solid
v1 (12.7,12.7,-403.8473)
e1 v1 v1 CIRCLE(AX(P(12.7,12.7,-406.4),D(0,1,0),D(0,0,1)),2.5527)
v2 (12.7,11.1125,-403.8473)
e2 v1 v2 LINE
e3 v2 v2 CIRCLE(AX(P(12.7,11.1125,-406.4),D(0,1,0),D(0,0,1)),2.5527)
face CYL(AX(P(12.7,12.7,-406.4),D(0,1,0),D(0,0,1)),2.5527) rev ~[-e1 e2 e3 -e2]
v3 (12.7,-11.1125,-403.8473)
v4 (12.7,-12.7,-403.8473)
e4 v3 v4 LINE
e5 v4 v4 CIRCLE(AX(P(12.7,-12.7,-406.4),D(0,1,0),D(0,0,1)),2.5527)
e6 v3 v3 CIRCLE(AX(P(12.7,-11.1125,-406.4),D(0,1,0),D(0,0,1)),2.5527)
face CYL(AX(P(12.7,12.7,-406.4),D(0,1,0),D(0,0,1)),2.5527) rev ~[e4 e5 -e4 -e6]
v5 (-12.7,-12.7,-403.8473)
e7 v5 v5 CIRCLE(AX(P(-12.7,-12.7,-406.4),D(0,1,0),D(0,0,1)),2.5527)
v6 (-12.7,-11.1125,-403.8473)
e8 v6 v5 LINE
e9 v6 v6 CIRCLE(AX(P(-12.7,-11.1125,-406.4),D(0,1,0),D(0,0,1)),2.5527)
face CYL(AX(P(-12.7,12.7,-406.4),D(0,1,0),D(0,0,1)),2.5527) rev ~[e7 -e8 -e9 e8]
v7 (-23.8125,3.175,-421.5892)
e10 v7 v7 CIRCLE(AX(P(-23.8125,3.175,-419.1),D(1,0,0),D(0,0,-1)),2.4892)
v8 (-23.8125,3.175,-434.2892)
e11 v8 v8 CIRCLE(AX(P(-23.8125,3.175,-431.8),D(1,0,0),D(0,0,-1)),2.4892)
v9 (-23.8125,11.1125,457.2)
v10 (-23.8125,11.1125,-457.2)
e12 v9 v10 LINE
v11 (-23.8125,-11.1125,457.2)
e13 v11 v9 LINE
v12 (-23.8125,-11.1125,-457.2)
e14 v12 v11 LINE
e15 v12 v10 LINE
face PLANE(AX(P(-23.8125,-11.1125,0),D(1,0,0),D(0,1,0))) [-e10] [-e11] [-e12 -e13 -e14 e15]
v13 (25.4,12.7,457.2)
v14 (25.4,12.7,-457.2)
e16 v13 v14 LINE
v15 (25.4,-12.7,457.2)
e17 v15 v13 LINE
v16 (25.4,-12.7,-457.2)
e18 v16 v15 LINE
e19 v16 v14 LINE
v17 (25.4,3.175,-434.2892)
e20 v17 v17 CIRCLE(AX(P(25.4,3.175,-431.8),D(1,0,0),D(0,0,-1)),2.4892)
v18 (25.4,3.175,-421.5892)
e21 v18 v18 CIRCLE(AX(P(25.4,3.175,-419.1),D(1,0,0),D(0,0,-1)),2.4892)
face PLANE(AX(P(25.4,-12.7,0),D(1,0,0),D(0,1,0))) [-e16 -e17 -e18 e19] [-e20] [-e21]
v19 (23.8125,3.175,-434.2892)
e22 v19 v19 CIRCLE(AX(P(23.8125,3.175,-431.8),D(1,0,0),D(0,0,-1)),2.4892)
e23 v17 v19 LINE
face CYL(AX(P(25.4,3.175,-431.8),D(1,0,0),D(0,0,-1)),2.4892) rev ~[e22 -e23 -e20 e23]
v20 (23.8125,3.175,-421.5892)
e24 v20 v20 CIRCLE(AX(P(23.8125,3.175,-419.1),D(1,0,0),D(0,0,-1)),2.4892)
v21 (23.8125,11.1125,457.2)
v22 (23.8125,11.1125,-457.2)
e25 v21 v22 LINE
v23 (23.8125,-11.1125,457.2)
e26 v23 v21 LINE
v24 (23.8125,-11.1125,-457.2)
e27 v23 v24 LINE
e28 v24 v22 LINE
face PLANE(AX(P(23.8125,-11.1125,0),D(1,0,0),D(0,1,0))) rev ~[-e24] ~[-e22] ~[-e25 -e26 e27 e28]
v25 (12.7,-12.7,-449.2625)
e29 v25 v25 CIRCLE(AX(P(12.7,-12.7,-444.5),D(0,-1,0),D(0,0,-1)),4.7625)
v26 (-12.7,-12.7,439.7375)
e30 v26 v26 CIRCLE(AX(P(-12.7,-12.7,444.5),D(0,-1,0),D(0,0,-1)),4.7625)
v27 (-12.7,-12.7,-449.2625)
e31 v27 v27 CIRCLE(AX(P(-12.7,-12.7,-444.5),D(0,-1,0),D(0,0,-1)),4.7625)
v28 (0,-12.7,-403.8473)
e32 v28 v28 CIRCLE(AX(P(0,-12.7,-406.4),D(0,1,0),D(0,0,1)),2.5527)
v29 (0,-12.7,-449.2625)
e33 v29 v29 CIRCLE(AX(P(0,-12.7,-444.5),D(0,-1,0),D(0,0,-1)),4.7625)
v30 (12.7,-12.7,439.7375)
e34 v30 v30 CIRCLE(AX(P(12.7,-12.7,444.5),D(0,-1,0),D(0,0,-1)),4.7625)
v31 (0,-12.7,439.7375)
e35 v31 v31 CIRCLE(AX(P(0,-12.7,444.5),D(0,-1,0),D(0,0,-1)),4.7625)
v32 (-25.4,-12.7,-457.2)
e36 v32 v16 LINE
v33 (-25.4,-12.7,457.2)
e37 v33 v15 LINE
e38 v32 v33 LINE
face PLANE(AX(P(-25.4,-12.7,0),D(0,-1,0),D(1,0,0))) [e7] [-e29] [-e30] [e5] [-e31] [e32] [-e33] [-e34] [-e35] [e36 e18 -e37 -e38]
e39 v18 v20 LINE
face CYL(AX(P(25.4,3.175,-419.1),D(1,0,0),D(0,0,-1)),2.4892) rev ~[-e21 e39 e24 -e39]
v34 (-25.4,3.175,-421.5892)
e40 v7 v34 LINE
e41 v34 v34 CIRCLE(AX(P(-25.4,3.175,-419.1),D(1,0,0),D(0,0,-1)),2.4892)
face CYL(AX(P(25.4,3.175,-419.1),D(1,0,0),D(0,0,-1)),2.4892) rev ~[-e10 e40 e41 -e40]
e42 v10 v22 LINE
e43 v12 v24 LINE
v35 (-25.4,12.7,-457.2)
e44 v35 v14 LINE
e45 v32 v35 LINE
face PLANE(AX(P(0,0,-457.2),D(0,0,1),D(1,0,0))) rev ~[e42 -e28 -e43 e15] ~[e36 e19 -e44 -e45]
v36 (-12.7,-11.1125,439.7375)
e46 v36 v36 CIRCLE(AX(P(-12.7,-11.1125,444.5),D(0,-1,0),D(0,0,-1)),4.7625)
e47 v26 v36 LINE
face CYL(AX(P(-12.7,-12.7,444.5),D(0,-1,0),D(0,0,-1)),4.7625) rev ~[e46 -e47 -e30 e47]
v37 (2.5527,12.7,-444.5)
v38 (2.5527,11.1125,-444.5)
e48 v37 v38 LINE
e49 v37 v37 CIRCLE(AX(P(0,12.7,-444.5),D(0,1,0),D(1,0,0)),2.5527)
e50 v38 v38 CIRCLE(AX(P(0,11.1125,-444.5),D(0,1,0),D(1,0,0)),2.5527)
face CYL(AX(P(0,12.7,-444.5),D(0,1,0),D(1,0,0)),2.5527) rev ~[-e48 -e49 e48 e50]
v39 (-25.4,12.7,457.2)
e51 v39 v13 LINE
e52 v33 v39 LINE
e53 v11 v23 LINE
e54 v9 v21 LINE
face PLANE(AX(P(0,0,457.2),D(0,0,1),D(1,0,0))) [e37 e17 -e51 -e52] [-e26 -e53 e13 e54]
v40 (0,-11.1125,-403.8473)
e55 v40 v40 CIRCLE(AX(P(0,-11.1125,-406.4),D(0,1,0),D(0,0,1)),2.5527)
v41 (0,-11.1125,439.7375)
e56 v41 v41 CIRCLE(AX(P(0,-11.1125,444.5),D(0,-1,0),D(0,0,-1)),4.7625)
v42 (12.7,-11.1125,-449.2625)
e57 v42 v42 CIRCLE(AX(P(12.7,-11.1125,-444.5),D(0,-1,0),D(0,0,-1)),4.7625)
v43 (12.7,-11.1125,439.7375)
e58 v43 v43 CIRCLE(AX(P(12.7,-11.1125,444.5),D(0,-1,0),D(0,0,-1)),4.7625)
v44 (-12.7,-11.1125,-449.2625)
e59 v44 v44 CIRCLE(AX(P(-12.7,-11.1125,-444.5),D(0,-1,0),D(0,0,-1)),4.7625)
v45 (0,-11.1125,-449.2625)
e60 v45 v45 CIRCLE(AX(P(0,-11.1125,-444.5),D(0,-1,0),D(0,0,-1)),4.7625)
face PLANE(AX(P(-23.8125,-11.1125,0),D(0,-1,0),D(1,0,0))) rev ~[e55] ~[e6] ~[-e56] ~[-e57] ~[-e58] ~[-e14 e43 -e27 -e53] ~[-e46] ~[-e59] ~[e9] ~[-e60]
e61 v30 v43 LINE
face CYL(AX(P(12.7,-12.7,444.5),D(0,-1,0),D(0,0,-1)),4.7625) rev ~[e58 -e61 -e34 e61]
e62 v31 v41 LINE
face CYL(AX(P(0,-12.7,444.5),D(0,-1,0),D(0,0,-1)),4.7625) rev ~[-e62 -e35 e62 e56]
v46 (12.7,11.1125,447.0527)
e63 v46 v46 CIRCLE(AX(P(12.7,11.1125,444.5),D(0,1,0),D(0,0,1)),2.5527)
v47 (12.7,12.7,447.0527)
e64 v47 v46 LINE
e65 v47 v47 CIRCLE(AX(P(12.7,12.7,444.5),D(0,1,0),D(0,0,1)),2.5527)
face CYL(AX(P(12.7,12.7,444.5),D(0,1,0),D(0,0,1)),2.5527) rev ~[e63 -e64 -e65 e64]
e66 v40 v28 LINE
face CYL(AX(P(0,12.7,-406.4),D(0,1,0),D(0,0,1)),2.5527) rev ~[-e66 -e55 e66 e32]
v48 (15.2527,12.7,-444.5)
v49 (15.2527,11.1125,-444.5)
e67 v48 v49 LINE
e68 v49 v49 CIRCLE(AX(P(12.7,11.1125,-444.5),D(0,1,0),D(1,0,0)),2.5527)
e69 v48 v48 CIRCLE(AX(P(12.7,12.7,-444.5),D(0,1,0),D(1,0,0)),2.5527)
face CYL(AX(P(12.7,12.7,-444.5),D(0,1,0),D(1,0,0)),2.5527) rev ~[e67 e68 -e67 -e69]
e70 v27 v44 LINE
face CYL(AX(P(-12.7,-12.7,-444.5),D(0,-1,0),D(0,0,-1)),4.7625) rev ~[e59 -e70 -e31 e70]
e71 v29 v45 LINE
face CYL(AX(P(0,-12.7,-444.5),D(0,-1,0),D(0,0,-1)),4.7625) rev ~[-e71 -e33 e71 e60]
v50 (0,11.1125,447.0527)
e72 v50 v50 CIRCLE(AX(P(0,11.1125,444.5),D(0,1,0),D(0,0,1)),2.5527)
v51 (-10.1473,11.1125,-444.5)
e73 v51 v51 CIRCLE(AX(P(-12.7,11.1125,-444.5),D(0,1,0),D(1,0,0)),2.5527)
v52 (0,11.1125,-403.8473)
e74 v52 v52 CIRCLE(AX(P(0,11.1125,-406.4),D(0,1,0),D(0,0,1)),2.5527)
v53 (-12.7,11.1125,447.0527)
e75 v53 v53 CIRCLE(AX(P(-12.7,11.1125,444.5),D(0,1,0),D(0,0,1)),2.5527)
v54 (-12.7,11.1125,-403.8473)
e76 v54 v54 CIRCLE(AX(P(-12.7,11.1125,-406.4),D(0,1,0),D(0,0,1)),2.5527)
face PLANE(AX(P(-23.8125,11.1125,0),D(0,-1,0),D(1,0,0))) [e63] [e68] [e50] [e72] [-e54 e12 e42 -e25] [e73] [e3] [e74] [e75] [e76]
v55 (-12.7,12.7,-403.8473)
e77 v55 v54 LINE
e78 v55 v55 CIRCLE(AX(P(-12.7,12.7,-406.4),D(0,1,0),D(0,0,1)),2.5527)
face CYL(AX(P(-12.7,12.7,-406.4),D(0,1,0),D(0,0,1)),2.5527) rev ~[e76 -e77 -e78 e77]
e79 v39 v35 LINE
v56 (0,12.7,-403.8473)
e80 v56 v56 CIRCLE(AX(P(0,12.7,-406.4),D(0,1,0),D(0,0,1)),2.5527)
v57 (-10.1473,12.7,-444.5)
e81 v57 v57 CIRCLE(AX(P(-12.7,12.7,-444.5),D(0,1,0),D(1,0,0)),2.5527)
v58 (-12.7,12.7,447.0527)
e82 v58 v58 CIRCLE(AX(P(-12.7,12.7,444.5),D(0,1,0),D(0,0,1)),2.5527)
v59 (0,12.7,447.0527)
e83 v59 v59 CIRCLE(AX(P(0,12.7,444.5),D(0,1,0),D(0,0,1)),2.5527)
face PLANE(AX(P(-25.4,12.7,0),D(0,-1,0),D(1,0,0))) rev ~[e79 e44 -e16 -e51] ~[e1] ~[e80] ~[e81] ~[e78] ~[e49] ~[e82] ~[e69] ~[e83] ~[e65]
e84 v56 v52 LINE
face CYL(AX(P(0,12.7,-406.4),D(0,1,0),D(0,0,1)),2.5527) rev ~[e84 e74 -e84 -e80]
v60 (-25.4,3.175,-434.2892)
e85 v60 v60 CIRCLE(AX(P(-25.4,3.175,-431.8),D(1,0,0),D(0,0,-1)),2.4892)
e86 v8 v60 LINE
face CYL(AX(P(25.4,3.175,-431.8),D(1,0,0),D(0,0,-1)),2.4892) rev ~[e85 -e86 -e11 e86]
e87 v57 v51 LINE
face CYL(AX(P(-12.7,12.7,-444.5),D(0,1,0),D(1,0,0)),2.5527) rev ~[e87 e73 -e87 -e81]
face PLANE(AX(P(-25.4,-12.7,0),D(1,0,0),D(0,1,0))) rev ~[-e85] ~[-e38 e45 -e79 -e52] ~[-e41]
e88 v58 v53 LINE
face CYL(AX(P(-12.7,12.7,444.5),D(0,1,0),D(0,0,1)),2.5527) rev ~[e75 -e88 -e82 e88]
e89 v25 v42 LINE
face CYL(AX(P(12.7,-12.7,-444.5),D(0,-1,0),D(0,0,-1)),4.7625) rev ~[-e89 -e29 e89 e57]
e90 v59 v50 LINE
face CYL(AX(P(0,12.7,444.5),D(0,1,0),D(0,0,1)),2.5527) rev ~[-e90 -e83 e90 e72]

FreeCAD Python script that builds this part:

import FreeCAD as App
import Part
import Sketcher

V = App.Vector
Q = App.Units.Quantity


def add_polygon(sketch, points):
    """Adds a closed chain of lines whose ends are joined by coincident constraints."""
    first, n = sketch.GeometryCount, len(points)
    for a, b in zip(points, points[1:] + points[:1]):
        sketch.addGeometry(Part.LineSegment(App.Vector(*a, 0), App.Vector(*b, 0)), False)
    for i in range(n):
        sketch.addConstraint(Sketcher.Constraint("Coincident", first + i, 2, first + (i + 1) % n, 1))

doc = App.newDocument("Part")
body = doc.addObject("PartDesign::Body", "Body")

# Sketch on XY plane
sketch1 = body.newObject("Sketcher::SketchObject", "Sketch")
sketch1.AttachmentSupport = (doc.getObject("XY_Plane"), [""])
sketch1.MapMode = "FlatFace"
add_polygon(sketch1, [(-25.4, 12.7), (-25.4, -12.7), (25.4, -12.7), (25.4, 12.7)])  # lines 0-3
add_polygon(sketch1, [(23.8125, -11.1125), (-23.8125, -11.1125), (-23.8125, 11.1125), (23.8125, 11.1125)])  # lines 4-7
sketch1.addConstraint([
    Sketcher.Constraint("Vertical", 0),
    Sketcher.Constraint("Horizontal", 1),
    Sketcher.Constraint("Vertical", 2),
    Sketcher.Constraint("Horizontal", 3),
    Sketcher.Constraint("Horizontal", 4),
    Sketcher.Constraint("Vertical", 5),
    Sketcher.Constraint("Horizontal", 6),
    Sketcher.Constraint("Vertical", 7),
    Sketcher.Constraint("Symmetric", 0, 2, 2, 2, -1, 1),
    Sketcher.Constraint("Symmetric", 4, 2, 6, 2, -1, 1),
    Sketcher.Constraint("DistanceX", 1, 1, 1, 2, Q("2 in")),
    Sketcher.Constraint("DistanceY", 0, 2, 0, 1, Q("1 in")),
    Sketcher.Constraint("DistanceX", 4, 2, 4, 1, Q("1.875 in")),
    Sketcher.Constraint("DistanceY", 5, 1, 5, 2, Q("0.875 in")),
])
pad1 = body.newObject("PartDesign::Pad", "Pad")
pad1.Profile = sketch1
pad1.Length = Q("36 in")
pad1.Midplane = True

# Sketch on XZ plane
sketch2 = body.newObject("Sketcher::SketchObject", "Sketch001")
sketch2.AttachmentSupport = (doc.getObject("XZ_Plane"), [""])
sketch2.MapMode = "FlatFace"
sketch2.AttachmentOffset = App.Placement(V(0, 0, -0.5 * 25.4), App.Rotation())
sketch2.addGeometry([
    Part.Circle(V(0, 444.5, 0), V(0, 0, 1), 2.5527),  # 0
    Part.Circle(V(12.7, 444.5, 0), V(0, 0, 1), 2.5527),  # 1
    Part.Circle(V(-12.7, 444.5, 0), V(0, 0, 1), 2.5527),  # 2
    Part.Circle(V(12.7, -444.5, 0), V(0, 0, 1), 2.5527),  # 3
    Part.Circle(V(0, -444.5, 0), V(0, 0, 1), 2.5527),  # 4
    Part.Circle(V(-12.7, -444.5, 0), V(0, 0, 1), 2.5527),  # 5
], False)
sketch2.addConstraint([
    Sketcher.Constraint("Equal", 0, 1),
    Sketcher.Constraint("Equal", 1, 2),
    Sketcher.Constraint("Equal", 2, 3),
    Sketcher.Constraint("Equal", 3, 4),
    Sketcher.Constraint("Equal", 4, 5),
    Sketcher.Constraint("Symmetric", 2, 3, 3, 3, -1, 1),
    Sketcher.Constraint("Symmetric", 0, 3, 4, 3, -1, 1),
    Sketcher.Constraint("Symmetric", 1, 3, 5, 3, -1, 1),
    Sketcher.Constraint("Symmetric", 1, 3, 2, 3, -2),
    Sketcher.Constraint("PointOnObject", 0, 3, -2),
    Sketcher.Constraint("Horizontal", 0, 3, 1, 3),
    Sketcher.Constraint("Diameter", 0, Q("0.201 in")),
    Sketcher.Constraint("DistanceX", 2, 3, 1, 3, Q("1 in")),
    Sketcher.Constraint("DistanceY", 3, 3, 1, 3, Q("35 in")),
])
pocket1 = body.newObject("PartDesign::Pocket", "Pocket")
pocket1.Profile = sketch2
pocket1.Length = Q("0.0625 in")
pocket1.Reversed = True

# Sketch on XZ plane
sketch3 = body.newObject("Sketcher::SketchObject", "Sketch002")
sketch3.AttachmentSupport = (doc.getObject("XZ_Plane"), [""])
sketch3.MapMode = "FlatFace"
sketch3.AttachmentOffset = App.Placement(V(0, 0, 0.5 * 25.4), App.Rotation())
sketch3.addGeometry([
    Part.Circle(V(-12.7, 444.5, 0), V(0, 0, 1), 4.7625),  # 0
    Part.Circle(V(0, 444.5, 0), V(0, 0, 1), 4.7625),  # 1
    Part.Circle(V(12.7, 444.5, 0), V(0, 0, 1), 4.7625),  # 2
    Part.Circle(V(12.7, -444.5, 0), V(0, 0, 1), 4.7625),  # 3
    Part.Circle(V(0, -444.5, 0), V(0, 0, 1), 4.7625),  # 4
    Part.Circle(V(-12.7, -444.5, 0), V(0, 0, 1), 4.7625),  # 5
], False)
sketch3.addConstraint([
    Sketcher.Constraint("Equal", 0, 1),
    Sketcher.Constraint("Equal", 1, 2),
    Sketcher.Constraint("Equal", 2, 3),
    Sketcher.Constraint("Equal", 3, 4),
    Sketcher.Constraint("Equal", 4, 5),
    Sketcher.Constraint("Symmetric", 0, 3, 3, 3, -1, 1),
    Sketcher.Constraint("Symmetric", 1, 3, 4, 3, -1, 1),
    Sketcher.Constraint("Symmetric", 2, 3, 5, 3, -1, 1),
    Sketcher.Constraint("Symmetric", 0, 3, 2, 3, -2),
    Sketcher.Constraint("PointOnObject", 1, 3, -2),
    Sketcher.Constraint("Horizontal", 0, 3, 1, 3),
    Sketcher.Constraint("Diameter", 0, Q("0.375 in")),
    Sketcher.Constraint("DistanceX", 0, 3, 2, 3, Q("1 in")),
    Sketcher.Constraint("DistanceY", 3, 3, 2, 3, Q("35 in")),
])
pocket2 = body.newObject("PartDesign::Pocket", "Pocket001")
pocket2.Profile = sketch3
pocket2.Length = Q("0.0625 in")

# Sketch on YZ plane
sketch4 = body.newObject("Sketcher::SketchObject", "Sketch003")
sketch4.AttachmentSupport = (doc.getObject("YZ_Plane"), [""])
sketch4.MapMode = "FlatFace"
sketch4.AttachmentOffset = App.Placement(V(0, 0, 1 * 25.4), App.Rotation())
sketch4.addGeometry([
    Part.Circle(V(3.175, -419.1, 0), V(0, 0, 1), 2.4892),
    Part.Circle(V(3.175, -431.8, 0), V(0, 0, 1), 2.4892),
], False)
sketch4.addConstraint([
    Sketcher.Constraint("Equal", 0, 1),
    Sketcher.Constraint("Vertical", 0, 3, 1, 3),
    Sketcher.Constraint("Diameter", 0, Q("0.196 in")),
    Sketcher.Constraint("DistanceY", 1, 3, -1, 1, Q("17 in")),
    Sketcher.Constraint("DistanceY", 0, 3, -1, 1, Q("16.5 in")),
    Sketcher.Constraint("DistanceX", -1, 1, 0, 3, Q("0.125 in")),
])
pocket3 = body.newObject("PartDesign::Pocket", "Pocket002")
pocket3.Profile = sketch4
pocket3.Type = "ThroughAll"

# Sketch on XZ plane
sketch5 = body.newObject("Sketcher::SketchObject", "Sketch004")
sketch5.AttachmentSupport = (doc.getObject("XZ_Plane"), [""])
sketch5.MapMode = "FlatFace"
sketch5.AttachmentOffset = App.Placement(V(0, 0, -0.5 * 25.4), App.Rotation())
sketch5.addGeometry([
    Part.Circle(V(-12.7, -406.4, 0), V(0, 0, 1), 2.5527),
    Part.Circle(V(0, -406.4, 0), V(0, 0, 1), 2.5527),
    Part.Circle(V(12.7, -406.4, 0), V(0, 0, 1), 2.5527),
], False)
sketch5.addConstraint([
    Sketcher.Constraint("Equal", 0, 1),
    Sketcher.Constraint("Equal", 1, 2),
    Sketcher.Constraint("Symmetric", 0, 3, 2, 3, -2),
    Sketcher.Constraint("PointOnObject", 1, 3, -2),
    Sketcher.Constraint("Horizontal", 0, 3, 1, 3),
    Sketcher.Constraint("Diameter", 0, Q("0.201 in")),
    Sketcher.Constraint("DistanceY", 0, 3, -1, 1, Q("16 in")),
    Sketcher.Constraint("DistanceX", 0, 3, 2, 3, Q("1 in")),
])
pocket4 = body.newObject("PartDesign::Pocket", "Pocket003")
pocket4.Profile = sketch5
pocket4.Type = "ThroughAll"
pocket4.Reversed = True

doc.recompute()
